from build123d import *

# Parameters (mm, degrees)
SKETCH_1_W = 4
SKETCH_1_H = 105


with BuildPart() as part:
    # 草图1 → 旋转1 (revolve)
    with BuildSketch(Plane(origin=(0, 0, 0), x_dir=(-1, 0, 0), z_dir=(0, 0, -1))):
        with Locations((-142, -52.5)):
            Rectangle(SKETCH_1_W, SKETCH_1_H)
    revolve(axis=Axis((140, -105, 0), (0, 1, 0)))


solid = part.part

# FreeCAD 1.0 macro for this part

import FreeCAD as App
import Part
import Sketcher
from FreeCAD import Vector
Q = App.Units.Quantity


def add_polygon(sketch, points):
    """Adds a closed chain of lines whose ends are joined by coincident constraints."""
    first, n = sketch.GeometryCount, len(points)
    for a, b in zip(points, points[1:] + points[:1]):
        sketch.addGeometry(Part.LineSegment(App.Vector(*a, 0), App.Vector(*b, 0)), False)
    for i in range(n):
        sketch.addConstraint(Sketcher.Constraint("Coincident", first + i, 2, first + (i + 1) % n, 1))

doc = App.newDocument("Part")
body = doc.addObject("PartDesign::Body", "Body")

sketch1 = doc.addObject("Sketcher::SketchObject", "Sketch")
body.addObject(sketch1)
sketch1.AttachmentSupport = (doc.XY_Plane, [""])
sketch1.MapMode = "FlatFace"
add_polygon(sketch1, [(144, 0), (144, -105), (140, -105), (140, 0)])
sketch1.addGeometry(Part.LineSegment(Vector(140, -105, 0), Vector(140, 0, 0)), True)
sketch1.addConstraint([
    Sketcher.Constraint("Vertical", 0),
    Sketcher.Constraint("Horizontal", 1),
    Sketcher.Constraint("Vertical", 2),
    Sketcher.Constraint("Horizontal", 3),
    Sketcher.Constraint("Vertical", 4),
    Sketcher.Constraint("Coincident", 4, 1, 1, 2),
    Sketcher.Constraint("PointOnObject", 2, 2, -1),
    Sketcher.Constraint("PointOnObject", 4, 2, -1),
    Sketcher.Constraint("DistanceX", 1, 2, 1, 1, Q("4 mm")),
    Sketcher.Constraint("DistanceY", 0, 2, 0, 1, Q("105 mm")),
    Sketcher.Constraint("DistanceX", -1, 1, 0, 2, Q("144 mm")),
])
revolution = doc.addObject("PartDesign::Revolution", "Revolution")
body.addObject(revolution)
revolution.Profile = sketch1
revolution.ReferenceAxis = (sketch1, ["Axis0"])
revolution.Angle = 360

doc.recompute()
